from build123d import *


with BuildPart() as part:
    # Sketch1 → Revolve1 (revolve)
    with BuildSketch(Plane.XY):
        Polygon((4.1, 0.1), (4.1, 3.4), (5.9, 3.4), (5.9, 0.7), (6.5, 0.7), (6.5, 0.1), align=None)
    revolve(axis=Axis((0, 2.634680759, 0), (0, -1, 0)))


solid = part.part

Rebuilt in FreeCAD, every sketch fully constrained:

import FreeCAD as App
import Part
import Sketcher
from FreeCAD import Vector

doc = App.newDocument("Part")
params = doc.addObject("Spreadsheet::Sheet", "Params")
for row, (alias, value) in enumerate([
    ("sketch1_width", "2.4 mm"),
    ("sketch1_width2", "0.6 mm"),
    ("sketch1_height", "3.3 mm"),
    ("revolution_angle", "360 deg"),
], start=1):
    params.set(f"A{row}", alias)
    params.set(f"B{row}", "=" + value)
    params.setAlias(f"B{row}", alias)

body = doc.addObject("PartDesign::Body", "Body")

sketch1 = doc.addObject("Sketcher::SketchObject", "Sketch")
body.addObject(sketch1)
sketch1.AttachmentSupport = (doc.XY_Plane, [""])
sketch1.MapMode = "FlatFace"
sketch1.addGeometry(Part.LineSegment(Vector(4.1, 3.4, 0), Vector(4.1, 0.1, 0)), False)
sketch1.addGeometry(Part.LineSegment(Vector(4.1, 0.1, 0), Vector(6.5, 0.1, 0)), False)
sketch1.addGeometry(Part.LineSegment(Vector(6.5, 0.1, 0), Vector(6.5, 0.7, 0)), False)
sketch1.addGeometry(Part.LineSegment(Vector(6.5, 0.7, 0), Vector(5.9, 0.7, 0)), False)
sketch1.addGeometry(Part.LineSegment(Vector(5.9, 0.7, 0), Vector(5.9, 3.4, 0)), False)
sketch1.addGeometry(Part.LineSegment(Vector(5.9, 3.4, 0), Vector(4.1, 3.4, 0)), False)
sketch1.addConstraint(Sketcher.Constraint("Coincident", 0, 2, 1, 1))
sketch1.addConstraint(Sketcher.Constraint("Coincident", 1, 2, 2, 1))
sketch1.addConstraint(Sketcher.Constraint("Coincident", 2, 2, 3, 1))
sketch1.addConstraint(Sketcher.Constraint("Coincident", 3, 2, 4, 1))
sketch1.addConstraint(Sketcher.Constraint("Coincident", 4, 2, 5, 1))
sketch1.addConstraint(Sketcher.Constraint("Coincident", 5, 2, 0, 1))
sketch1.addConstraint(Sketcher.Constraint("Vertical", 0))
sketch1.addConstraint(Sketcher.Constraint("Horizontal", 1))
sketch1.addConstraint(Sketcher.Constraint("Vertical", 2))
sketch1.addConstraint(Sketcher.Constraint("Horizontal", 3))
sketch1.addConstraint(Sketcher.Constraint("Vertical", 4))
sketch1.addConstraint(Sketcher.Constraint("Horizontal", 5))
sketch1.addConstraint(Sketcher.Constraint("Equal", 3, 2))
sketch1.addConstraint(Sketcher.Constraint("DistanceX", 1, 1, 1, 2, 2.4))
sketch1.addConstraint(Sketcher.Constraint("DistanceX", 3, 2, 3, 1, 0.6))
sketch1.addConstraint(Sketcher.Constraint("DistanceY", 0, 2, 0, 1, 3.3))
sketch1.addConstraint(Sketcher.Constraint("DistanceX", -1, 1, 0, 2, 4.1))
sketch1.addConstraint(Sketcher.Constraint("DistanceY", -1, 1, 0, 2, 0.1))
sketch1.setExpression("Constraints[13]", "Params.sketch1_width")
sketch1.setExpression("Constraints[14]", "Params.sketch1_width2")
sketch1.setExpression("Constraints[15]", "Params.sketch1_height")
revolution = doc.addObject("PartDesign::Revolution", "Revolution")
body.addObject(revolution)
revolution.Profile = sketch1
revolution.ReferenceAxis = (sketch1, ["V_Axis"])
revolution.setExpression("Angle", "Params.revolution_angle")

doc.recompute()
